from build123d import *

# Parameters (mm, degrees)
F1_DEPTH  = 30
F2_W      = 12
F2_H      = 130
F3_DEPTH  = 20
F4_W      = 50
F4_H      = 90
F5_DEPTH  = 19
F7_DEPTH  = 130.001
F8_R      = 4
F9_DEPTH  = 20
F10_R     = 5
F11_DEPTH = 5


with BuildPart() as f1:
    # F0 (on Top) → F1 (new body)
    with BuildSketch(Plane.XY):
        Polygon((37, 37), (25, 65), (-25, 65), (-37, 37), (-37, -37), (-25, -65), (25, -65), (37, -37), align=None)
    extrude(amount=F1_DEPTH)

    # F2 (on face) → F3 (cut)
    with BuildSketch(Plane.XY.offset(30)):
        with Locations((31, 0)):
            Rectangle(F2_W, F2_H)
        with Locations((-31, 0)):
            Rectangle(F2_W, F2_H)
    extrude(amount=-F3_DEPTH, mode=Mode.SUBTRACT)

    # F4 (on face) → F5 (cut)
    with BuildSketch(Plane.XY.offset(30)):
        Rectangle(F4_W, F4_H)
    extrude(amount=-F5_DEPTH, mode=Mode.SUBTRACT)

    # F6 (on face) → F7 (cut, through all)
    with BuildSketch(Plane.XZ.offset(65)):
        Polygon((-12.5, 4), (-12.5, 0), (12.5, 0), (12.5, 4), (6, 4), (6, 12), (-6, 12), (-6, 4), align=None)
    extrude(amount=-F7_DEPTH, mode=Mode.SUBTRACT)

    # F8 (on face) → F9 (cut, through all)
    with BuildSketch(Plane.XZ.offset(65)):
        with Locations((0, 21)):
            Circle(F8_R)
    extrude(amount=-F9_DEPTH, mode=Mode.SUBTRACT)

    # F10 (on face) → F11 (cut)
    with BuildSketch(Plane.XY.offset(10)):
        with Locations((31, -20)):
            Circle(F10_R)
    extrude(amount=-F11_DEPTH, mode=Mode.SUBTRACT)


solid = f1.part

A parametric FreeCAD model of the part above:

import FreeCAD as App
import Part
import Sketcher

V = App.Vector

doc = App.newDocument("Part")
body = doc.addObject("PartDesign::Body", "Body")

# Sketch on XY plane
sketch1 = body.newObject("Sketcher::SketchObject", "Sketch")
sketch1.AttachmentSupport = (doc.getObject("XY_Plane"), [""])
sketch1.MapMode = "FlatFace"
sketch1.addGeometry([
    Part.LineSegment(V(37, 37, 0), V(25, 65, 0)),  # 0
    Part.LineSegment(V(25, 65, 0), V(-25, 65, 0)),  # 1
    Part.LineSegment(V(-25, 65, 0), V(-37, 37, 0)),  # 2
    Part.LineSegment(V(-37, 37, 0), V(-37, -37, 0)),  # 3
    Part.LineSegment(V(-37, -37, 0), V(-25, -65, 0)),  # 4
    Part.LineSegment(V(-25, -65, 0), V(25, -65, 0)),  # 5
    Part.LineSegment(V(25, -65, 0), V(37, -37, 0)),  # 6
    Part.LineSegment(V(37, -37, 0), V(37, 37, 0)),  # 7
], False)
sketch1.addConstraint([
    Sketcher.Constraint("Coincident", 0, 2, 1, 1),
    Sketcher.Constraint("Coincident", 1, 2, 2, 1),
    Sketcher.Constraint("Coincident", 2, 2, 3, 1),
    Sketcher.Constraint("Coincident", 3, 2, 4, 1),
    Sketcher.Constraint("Coincident", 4, 2, 5, 1),
    Sketcher.Constraint("Coincident", 5, 2, 6, 1),
    Sketcher.Constraint("Coincident", 6, 2, 7, 1),
    Sketcher.Constraint("Coincident", 7, 2, 0, 1),
    Sketcher.Constraint("Horizontal", 1),
    Sketcher.Constraint("Vertical", 3),
    Sketcher.Constraint("Horizontal", 5),
    Sketcher.Constraint("Vertical", 7),
    Sketcher.Constraint("Symmetric", 0, 2, 4, 2, -1, 1),
    Sketcher.Constraint("Symmetric", 2, 2, 6, 2, -1, 1),
    Sketcher.Constraint("Parallel", 0, 4),
    Sketcher.Constraint("Parallel", 2, 6),
    Sketcher.Constraint("Horizontal", 3, 2, 6, 2),
    Sketcher.Constraint("Vertical", 1, 2, 4, 2),
    Sketcher.Constraint("DistanceX", 1, 2, 1, 1, 50.0),
    Sketcher.Constraint("DistanceY", 3, 2, 3, 1, 74.0),
    Sketcher.Constraint("DistanceY", -1, 1, 0, 2, 65.0),
    Sketcher.Constraint("DistanceX", 2, 2, -1, 1, 37.0),
])
pad1 = body.newObject("PartDesign::Pad", "Pad")
pad1.Profile = sketch1
pad1.Length = 30

# Sketch on XY plane
sketch2 = body.newObject("Sketcher::SketchObject", "Sketch001")
sketch2.AttachmentSupport = (doc.getObject("XY_Plane"), [""])
sketch2.MapMode = "FlatFace"
sketch2.AttachmentOffset = App.Placement(V(0, 0, 30), App.Rotation())
sketch2.addGeometry([
    Part.LineSegment(V(25, 65, 0), V(25, -65, 0)),  # 0
    Part.LineSegment(V(25, -65, 0), V(37, -65, 0)),  # 1
    Part.LineSegment(V(37, -65, 0), V(37, 65, 0)),  # 2
    Part.LineSegment(V(37, 65, 0), V(25, 65, 0)),  # 3
    Part.LineSegment(V(-37, 65, 0), V(-37, -65, 0)),  # 4
    Part.LineSegment(V(-37, -65, 0), V(-25, -65, 0)),  # 5
    Part.LineSegment(V(-25, -65, 0), V(-25, 65, 0)),  # 6
    Part.LineSegment(V(-25, 65, 0), V(-37, 65, 0)),  # 7
], False)
sketch2.addConstraint([
    Sketcher.Constraint("Coincident", 0, 2, 1, 1),
    Sketcher.Constraint("Coincident", 1, 2, 2, 1),
    Sketcher.Constraint("Coincident", 2, 2, 3, 1),
    Sketcher.Constraint("Coincident", 3, 2, 0, 1),
    Sketcher.Constraint("Coincident", 4, 2, 5, 1),
    Sketcher.Constraint("Coincident", 5, 2, 6, 1),
    Sketcher.Constraint("Coincident", 6, 2, 7, 1),
    Sketcher.Constraint("Coincident", 7, 2, 4, 1),
    Sketcher.Constraint("Vertical", 0),
    Sketcher.Constraint("Horizontal", 1),
    Sketcher.Constraint("Vertical", 2),
    Sketcher.Constraint("Horizontal", 3),
    Sketcher.Constraint("Vertical", 4),
    Sketcher.Constraint("Horizontal", 5),
    Sketcher.Constraint("Vertical", 6),
    Sketcher.Constraint("Horizontal", 7),
    Sketcher.Constraint("Symmetric", 2, 2, 4, 2, -1, 1),
    Sketcher.Constraint("Symmetric", 0, 2, 6, 2, -1, 1),
    Sketcher.Constraint("Horizontal", 1, 2, 4, 2),
    Sketcher.Constraint("DistanceX", 1, 1, 1, 2, 12.0),
    Sketcher.Constraint("DistanceY", 0, 2, 0, 1, 130.0),
    Sketcher.Constraint("DistanceX", -1, 1, 0, 2, 25.0),
])
pocket1 = body.newObject("PartDesign::Pocket", "Pocket")
pocket1.Profile = sketch2
pocket1.Length = 20

# Sketch on XY plane
sketch3 = body.newObject("Sketcher::SketchObject", "Sketch002")
sketch3.AttachmentSupport = (doc.getObject("XY_Plane"), [""])
sketch3.MapMode = "FlatFace"
sketch3.AttachmentOffset = App.Placement(V(0, 0, 30), App.Rotation())
sketch3.addGeometry([
    Part.LineSegment(V(-25, 45, 0), V(-25, -45, 0)),
    Part.LineSegment(V(-25, -45, 0), V(25, -45, 0)),
    Part.LineSegment(V(25, -45, 0), V(25, 45, 0)),
    Part.LineSegment(V(25, 45, 0), V(-25, 45, 0)),
], False)
sketch3.addConstraint([
    Sketcher.Constraint("Coincident", 0, 2, 1, 1),
    Sketcher.Constraint("Coincident", 1, 2, 2, 1),
    Sketcher.Constraint("Coincident", 2, 2, 3, 1),
    Sketcher.Constraint("Coincident", 3, 2, 0, 1),
    Sketcher.Constraint("Vertical", 0),
    Sketcher.Constraint("Horizontal", 1),
    Sketcher.Constraint("Vertical", 2),
    Sketcher.Constraint("Horizontal", 3),
    Sketcher.Constraint("Symmetric", 0, 2, 2, 2, -1, 1),
    Sketcher.Constraint("DistanceX", 1, 1, 1, 2, 50.0),
    Sketcher.Constraint("DistanceY", 0, 2, 0, 1, 90.0),
])
pocket2 = body.newObject("PartDesign::Pocket", "Pocket001")
pocket2.Profile = sketch3
pocket2.Length = 19

# Sketch on XZ plane
sketch4 = body.newObject("Sketcher::SketchObject", "Sketch003")
sketch4.AttachmentSupport = (doc.getObject("XZ_Plane"), [""])
sketch4.MapMode = "FlatFace"
sketch4.AttachmentOffset = App.Placement(V(0, 0, 65), App.Rotation())
sketch4.addGeometry([
    Part.LineSegment(V(-12.5, 4, 0), V(-12.5, 0, 0)),  # 0
    Part.LineSegment(V(-12.5, 0, 0), V(12.5, 0, 0)),  # 1
    Part.LineSegment(V(12.5, 0, 0), V(12.5, 4, 0)),  # 2
    Part.LineSegment(V(12.5, 4, 0), V(6, 4, 0)),  # 3
    Part.LineSegment(V(6, 4, 0), V(6, 12, 0)),  # 4
    Part.LineSegment(V(6, 12, 0), V(-6, 12, 0)),  # 5
    Part.LineSegment(V(-6, 12, 0), V(-6, 4, 0)),  # 6
    Part.LineSegment(V(-6, 4, 0), V(-12.5, 4, 0)),  # 7
], False)
sketch4.addConstraint([
    Sketcher.Constraint("Coincident", 0, 2, 1, 1),
    Sketcher.Constraint("Coincident", 1, 2, 2, 1),
    Sketcher.Constraint("Coincident", 2, 2, 3, 1),
    Sketcher.Constraint("Coincident", 3, 2, 4, 1),
    Sketcher.Constraint("Coincident", 4, 2, 5, 1),
    Sketcher.Constraint("Coincident", 5, 2, 6, 1),
    Sketcher.Constraint("Coincident", 6, 2, 7, 1),
    Sketcher.Constraint("Coincident", 7, 2, 0, 1),
    Sketcher.Constraint("Vertical", 0),
    Sketcher.Constraint("Horizontal", 1),
    Sketcher.Constraint("Vertical", 2),
    Sketcher.Constraint("Horizontal", 3),
    Sketcher.Constraint("Vertical", 4),
    Sketcher.Constraint("Horizontal", 5),
    Sketcher.Constraint("Vertical", 6),
    Sketcher.Constraint("Horizontal", 7),
    Sketcher.Constraint("Symmetric", 0, 2, 1, 2, -1, 1),
    Sketcher.Constraint("Symmetric", 3, 2, 6, 2, -2),
    Sketcher.Constraint("DistanceX", 1, 1, 1, 2, 25.0),
    Sketcher.Constraint("DistanceX", 5, 2, 5, 1, 12.0),
    Sketcher.Constraint("DistanceY", 0, 2, 0, 1, 4.0),
    Sketcher.Constraint("DistanceY", 4, 1, 4, 2, 8.0),
])
pocket3 = body.newObject("PartDesign::Pocket", "Pocket002")
pocket3.Profile = sketch4
pocket3.Type = "ThroughAll"

# Sketch on XZ plane
sketch5 = body.newObject("Sketcher::SketchObject", "Sketch004")
sketch5.AttachmentSupport = (doc.getObject("XZ_Plane"), [""])
sketch5.MapMode = "FlatFace"
sketch5.AttachmentOffset = App.Placement(V(0, 0, 65), App.Rotation())
sketch5.addGeometry(Part.Circle(V(0, 21, 0), V(0, 0, 1), 4), False)
sketch5.addConstraint([
    Sketcher.Constraint("PointOnObject", 0, 3, -2),
    Sketcher.Constraint("Diameter", 0, 8.0),
    Sketcher.Constraint("DistanceY", -1, 1, 0, 3, 21.0),
])
pocket4 = body.newObject("PartDesign::Pocket", "Pocket003")
pocket4.Profile = sketch5
pocket4.Length = 20

# Sketch on XY plane
sketch6 = body.newObject("Sketcher::SketchObject", "Sketch005")
sketch6.AttachmentSupport = (doc.getObject("XY_Plane"), [""])
sketch6.MapMode = "FlatFace"
sketch6.AttachmentOffset = App.Placement(V(0, 0, 10), App.Rotation())
sketch6.addGeometry(Part.Circle(V(31, -20, 0), V(0, 0, 1), 5), False)
sketch6.addConstraint([
    Sketcher.Constraint("Diameter", 0, 10.0),
    Sketcher.Constraint("DistanceX", -1, 1, 0, 3, 31.0),
    Sketcher.Constraint("DistanceY", 0, 3, -1, 1, 20.0),
])
pocket5 = body.newObject("PartDesign::Pocket", "Pocket004")
pocket5.Profile = sketch6
pocket5.Length = 5

doc.recompute()
